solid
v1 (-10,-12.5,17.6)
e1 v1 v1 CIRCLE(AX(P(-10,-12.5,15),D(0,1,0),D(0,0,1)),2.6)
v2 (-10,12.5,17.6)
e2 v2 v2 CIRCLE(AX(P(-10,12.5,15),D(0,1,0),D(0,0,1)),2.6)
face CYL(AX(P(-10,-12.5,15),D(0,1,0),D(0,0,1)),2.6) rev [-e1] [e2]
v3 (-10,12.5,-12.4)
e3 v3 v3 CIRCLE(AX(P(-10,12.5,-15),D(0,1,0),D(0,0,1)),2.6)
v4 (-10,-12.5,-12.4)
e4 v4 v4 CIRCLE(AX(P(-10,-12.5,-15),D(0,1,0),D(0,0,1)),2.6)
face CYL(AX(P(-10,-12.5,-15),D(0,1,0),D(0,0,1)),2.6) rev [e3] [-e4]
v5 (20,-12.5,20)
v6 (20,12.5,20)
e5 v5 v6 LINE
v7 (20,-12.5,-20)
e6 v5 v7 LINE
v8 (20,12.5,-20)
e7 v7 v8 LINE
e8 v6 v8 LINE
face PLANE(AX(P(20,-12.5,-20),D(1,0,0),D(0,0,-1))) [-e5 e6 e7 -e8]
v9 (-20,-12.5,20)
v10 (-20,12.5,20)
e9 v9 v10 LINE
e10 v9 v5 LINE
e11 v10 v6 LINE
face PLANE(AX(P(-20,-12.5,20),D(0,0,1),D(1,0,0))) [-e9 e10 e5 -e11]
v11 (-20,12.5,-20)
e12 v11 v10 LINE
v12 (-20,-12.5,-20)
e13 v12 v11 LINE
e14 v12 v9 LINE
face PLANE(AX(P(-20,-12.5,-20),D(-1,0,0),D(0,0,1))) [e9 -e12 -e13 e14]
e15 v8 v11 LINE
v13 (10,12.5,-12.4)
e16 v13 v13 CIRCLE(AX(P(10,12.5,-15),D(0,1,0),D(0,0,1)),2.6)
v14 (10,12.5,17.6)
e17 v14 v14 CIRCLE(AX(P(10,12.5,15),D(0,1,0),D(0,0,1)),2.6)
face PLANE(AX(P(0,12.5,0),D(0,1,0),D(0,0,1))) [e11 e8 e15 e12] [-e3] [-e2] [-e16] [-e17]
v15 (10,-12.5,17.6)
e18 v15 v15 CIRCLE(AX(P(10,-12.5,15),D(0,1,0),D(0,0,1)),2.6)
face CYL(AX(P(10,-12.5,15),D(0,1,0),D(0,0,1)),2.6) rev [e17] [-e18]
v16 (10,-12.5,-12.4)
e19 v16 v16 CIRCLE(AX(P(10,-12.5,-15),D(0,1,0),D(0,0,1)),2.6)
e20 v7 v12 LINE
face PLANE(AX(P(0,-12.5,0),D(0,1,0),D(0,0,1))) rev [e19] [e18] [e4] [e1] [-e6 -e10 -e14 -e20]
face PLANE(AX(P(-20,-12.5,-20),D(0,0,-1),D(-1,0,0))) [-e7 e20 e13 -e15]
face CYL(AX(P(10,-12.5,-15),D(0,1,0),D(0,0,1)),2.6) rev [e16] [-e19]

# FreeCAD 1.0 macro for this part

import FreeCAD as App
import Part
import Sketcher
from FreeCAD import Vector
Q = App.Units.Quantity

doc = App.newDocument("Part")
body = doc.addObject("PartDesign::Body", "Body")

sketch1 = doc.addObject("Sketcher::SketchObject", "Sketch")
body.addObject(sketch1)
sketch1.AttachmentSupport = (doc.XZ_Plane, [""])
sketch1.MapMode = "FlatFace"
sketch1.addGeometry(Part.LineSegment(Vector(-20, -20, 0), Vector(-20, 20, 0)), False)
sketch1.addGeometry(Part.LineSegment(Vector(-20, 20, 0), Vector(20, 20, 0)), False)
sketch1.addGeometry(Part.LineSegment(Vector(20, 20, 0), Vector(20, -20, 0)), False)
sketch1.addGeometry(Part.LineSegment(Vector(20, -20, 0), Vector(-20, -20, 0)), False)
sketch1.addConstraint(Sketcher.Constraint("Coincident", 0, 2, 1, 1))
sketch1.addConstraint(Sketcher.Constraint("Coincident", 1, 2, 2, 1))
sketch1.addConstraint(Sketcher.Constraint("Coincident", 2, 2, 3, 1))
sketch1.addConstraint(Sketcher.Constraint("Coincident", 3, 2, 0, 1))
sketch1.addConstraint(Sketcher.Constraint("Vertical", 0))
sketch1.addConstraint(Sketcher.Constraint("Horizontal", 1))
sketch1.addConstraint(Sketcher.Constraint("Vertical", 2))
sketch1.addConstraint(Sketcher.Constraint("Horizontal", 3))
sketch1.addConstraint(Sketcher.Constraint("Symmetric", 0, 2, 2, 2, -1, 1))
sketch1.addConstraint(Sketcher.Constraint("Equal", 3, 0))
sketch1.addConstraint(Sketcher.Constraint("DistanceX", 1, 1, 1, 2, Q("40 mm")))
pad1 = doc.addObject("PartDesign::Pad", "Pad")
body.addObject(pad1)
pad1.Profile = sketch1
pad1.Type = "TwoLengths"
pad1.Length = 12.5
pad1.Length2 = 12.5
pad1.Reversed = True

sketch2 = doc.addObject("Sketcher::SketchObject", "Sketch001")
body.addObject(sketch2)
sketch2.AttachmentSupport = (doc.XZ_Plane, [""])
sketch2.MapMode = "FlatFace"
sketch2.AttachmentOffset = App.Placement(Vector(0, 0, -12.5), App.Rotation())
sketch2.addGeometry(Part.Circle(Vector(-10, -15, 0), Vector(0, 0, 1), 2.6), False)
sketch2.addGeometry(Part.Circle(Vector(10, -15, 0), Vector(0, 0, 1), 2.6), False)
sketch2.addGeometry(Part.Circle(Vector(-10, 15, 0), Vector(0, 0, 1), 2.6), False)
sketch2.addGeometry(Part.Circle(Vector(10, 15, 0), Vector(0, 0, 1), 2.6), False)
sketch2.addConstraint(Sketcher.Constraint("Equal", 0, 1))
sketch2.addConstraint(Sketcher.Constraint("Equal", 1, 2))
sketch2.addConstraint(Sketcher.Constraint("Equal", 2, 3))
sketch2.addConstraint(Sketcher.Constraint("Symmetric", 1, 3, 2, 3, -1, 1))
sketch2.addConstraint(Sketcher.Constraint("Symmetric", 0, 3, 3, 3, -1, 1))
sketch2.addConstraint(Sketcher.Constraint("Symmetric", 0, 3, 1, 3, -2))
sketch2.addConstraint(Sketcher.Constraint("Diameter", 0, Q("5.2 mm")))
sketch2.addConstraint(Sketcher.Constraint("DistanceX", 0, 3, -1, 1, Q("10 mm")))
sketch2.addConstraint(Sketcher.Constraint("DistanceY", 0, 3, -1, 1, Q("15 mm")))
pocket1 = doc.addObject("PartDesign::Pocket", "Pocket")
body.addObject(pocket1)
pocket1.Profile = sketch2
pocket1.Type = "ThroughAll"
pocket1.Reversed = True

doc.recompute()
